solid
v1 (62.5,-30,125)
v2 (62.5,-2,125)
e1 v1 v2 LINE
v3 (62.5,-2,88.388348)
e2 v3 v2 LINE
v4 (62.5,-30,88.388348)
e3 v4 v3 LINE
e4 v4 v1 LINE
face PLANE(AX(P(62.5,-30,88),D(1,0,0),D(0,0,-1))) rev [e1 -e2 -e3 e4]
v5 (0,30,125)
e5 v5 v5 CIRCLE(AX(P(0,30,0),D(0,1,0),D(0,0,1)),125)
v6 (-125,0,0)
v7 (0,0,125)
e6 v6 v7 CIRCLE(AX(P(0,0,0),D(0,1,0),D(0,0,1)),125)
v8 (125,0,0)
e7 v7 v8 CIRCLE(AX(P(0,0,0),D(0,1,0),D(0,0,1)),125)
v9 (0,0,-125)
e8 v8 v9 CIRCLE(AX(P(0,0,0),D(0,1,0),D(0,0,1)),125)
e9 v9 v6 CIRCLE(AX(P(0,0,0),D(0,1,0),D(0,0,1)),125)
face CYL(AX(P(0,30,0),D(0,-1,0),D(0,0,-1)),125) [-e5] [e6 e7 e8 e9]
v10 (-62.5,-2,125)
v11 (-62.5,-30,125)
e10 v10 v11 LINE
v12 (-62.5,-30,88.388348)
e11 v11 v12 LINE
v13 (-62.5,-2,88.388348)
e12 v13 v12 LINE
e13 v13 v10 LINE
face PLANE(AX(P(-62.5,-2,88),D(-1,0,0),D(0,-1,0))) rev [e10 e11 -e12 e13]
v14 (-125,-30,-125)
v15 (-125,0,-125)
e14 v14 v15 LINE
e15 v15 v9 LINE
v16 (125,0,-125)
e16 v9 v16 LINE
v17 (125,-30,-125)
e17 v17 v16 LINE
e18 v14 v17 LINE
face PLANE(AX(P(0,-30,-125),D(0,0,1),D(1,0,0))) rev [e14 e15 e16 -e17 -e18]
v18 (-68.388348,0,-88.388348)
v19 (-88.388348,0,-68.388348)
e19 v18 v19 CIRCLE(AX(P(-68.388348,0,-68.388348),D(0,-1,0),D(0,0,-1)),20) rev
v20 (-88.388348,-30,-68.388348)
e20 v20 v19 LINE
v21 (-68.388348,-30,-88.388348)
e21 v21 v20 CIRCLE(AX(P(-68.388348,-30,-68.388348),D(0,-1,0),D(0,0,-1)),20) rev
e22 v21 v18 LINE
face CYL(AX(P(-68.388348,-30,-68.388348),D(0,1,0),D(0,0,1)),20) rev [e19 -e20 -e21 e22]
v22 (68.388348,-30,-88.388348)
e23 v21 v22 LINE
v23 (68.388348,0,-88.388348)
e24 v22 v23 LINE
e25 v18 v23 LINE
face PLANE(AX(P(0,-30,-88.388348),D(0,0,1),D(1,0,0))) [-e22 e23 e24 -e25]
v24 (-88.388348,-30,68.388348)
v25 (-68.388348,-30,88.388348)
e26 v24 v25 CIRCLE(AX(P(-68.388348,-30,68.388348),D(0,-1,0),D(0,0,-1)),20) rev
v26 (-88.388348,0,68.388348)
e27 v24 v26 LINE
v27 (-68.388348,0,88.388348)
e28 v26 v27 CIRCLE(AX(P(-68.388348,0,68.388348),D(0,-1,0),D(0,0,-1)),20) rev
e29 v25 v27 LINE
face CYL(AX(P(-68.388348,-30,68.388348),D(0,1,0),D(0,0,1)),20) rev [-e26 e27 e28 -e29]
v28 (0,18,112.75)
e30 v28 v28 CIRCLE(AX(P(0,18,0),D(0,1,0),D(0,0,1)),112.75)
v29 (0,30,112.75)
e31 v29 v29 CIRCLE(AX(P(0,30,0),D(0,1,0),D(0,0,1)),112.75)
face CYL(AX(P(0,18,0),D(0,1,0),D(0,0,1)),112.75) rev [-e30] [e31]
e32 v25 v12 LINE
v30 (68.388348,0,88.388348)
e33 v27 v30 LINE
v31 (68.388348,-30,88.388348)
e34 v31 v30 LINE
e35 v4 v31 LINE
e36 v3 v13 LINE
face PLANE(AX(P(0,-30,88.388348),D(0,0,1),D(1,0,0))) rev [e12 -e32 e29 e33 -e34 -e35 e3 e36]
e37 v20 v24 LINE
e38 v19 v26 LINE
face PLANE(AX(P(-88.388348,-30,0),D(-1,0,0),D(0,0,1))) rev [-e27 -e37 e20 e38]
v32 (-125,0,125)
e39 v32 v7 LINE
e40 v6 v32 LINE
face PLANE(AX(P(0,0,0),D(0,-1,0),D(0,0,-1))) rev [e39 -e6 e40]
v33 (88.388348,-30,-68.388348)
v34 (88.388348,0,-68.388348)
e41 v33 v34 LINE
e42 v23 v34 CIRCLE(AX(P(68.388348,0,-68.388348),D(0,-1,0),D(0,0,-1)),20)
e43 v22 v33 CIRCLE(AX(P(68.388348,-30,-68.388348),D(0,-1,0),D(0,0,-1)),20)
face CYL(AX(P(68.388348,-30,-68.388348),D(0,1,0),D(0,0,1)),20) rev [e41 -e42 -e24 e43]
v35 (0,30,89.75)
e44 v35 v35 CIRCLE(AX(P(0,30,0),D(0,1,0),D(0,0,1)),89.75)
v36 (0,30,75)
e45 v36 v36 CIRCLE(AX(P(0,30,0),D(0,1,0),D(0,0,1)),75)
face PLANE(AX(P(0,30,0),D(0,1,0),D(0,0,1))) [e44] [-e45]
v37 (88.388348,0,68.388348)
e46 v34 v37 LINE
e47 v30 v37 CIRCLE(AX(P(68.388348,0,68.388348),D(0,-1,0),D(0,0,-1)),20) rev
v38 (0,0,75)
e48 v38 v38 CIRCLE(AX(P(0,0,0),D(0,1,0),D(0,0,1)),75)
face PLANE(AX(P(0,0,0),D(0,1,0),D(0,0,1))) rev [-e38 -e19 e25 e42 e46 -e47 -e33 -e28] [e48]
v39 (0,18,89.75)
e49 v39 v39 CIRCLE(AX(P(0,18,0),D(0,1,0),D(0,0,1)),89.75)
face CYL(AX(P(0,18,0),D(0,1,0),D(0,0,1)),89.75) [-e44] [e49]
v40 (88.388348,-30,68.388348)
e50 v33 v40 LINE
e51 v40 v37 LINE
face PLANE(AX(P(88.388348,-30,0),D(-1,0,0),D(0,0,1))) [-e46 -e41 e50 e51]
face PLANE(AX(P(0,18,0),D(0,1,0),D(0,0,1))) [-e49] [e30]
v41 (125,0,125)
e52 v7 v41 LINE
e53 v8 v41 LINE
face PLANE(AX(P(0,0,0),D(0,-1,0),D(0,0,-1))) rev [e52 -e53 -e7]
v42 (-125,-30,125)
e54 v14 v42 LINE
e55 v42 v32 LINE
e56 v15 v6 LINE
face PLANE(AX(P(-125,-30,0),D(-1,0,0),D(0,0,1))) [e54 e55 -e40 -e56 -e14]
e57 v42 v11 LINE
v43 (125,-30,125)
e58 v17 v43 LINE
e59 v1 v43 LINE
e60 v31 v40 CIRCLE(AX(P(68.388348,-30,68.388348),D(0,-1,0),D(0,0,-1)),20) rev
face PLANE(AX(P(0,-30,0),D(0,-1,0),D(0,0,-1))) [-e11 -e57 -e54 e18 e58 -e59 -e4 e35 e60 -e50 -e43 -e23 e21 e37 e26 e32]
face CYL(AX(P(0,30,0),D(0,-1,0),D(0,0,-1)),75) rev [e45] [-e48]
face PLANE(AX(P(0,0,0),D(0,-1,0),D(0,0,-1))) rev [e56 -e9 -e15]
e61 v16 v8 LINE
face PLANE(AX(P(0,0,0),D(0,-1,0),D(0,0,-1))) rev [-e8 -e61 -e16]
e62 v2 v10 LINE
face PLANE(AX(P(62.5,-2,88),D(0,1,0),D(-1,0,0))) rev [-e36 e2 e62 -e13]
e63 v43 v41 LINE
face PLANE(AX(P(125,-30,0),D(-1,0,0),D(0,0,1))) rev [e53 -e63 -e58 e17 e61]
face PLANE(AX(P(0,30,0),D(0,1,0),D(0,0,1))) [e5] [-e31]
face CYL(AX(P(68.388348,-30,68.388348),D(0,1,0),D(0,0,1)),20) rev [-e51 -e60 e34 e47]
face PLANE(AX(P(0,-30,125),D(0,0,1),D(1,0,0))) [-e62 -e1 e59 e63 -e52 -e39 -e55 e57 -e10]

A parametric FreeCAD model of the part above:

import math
import FreeCAD as App
import Part
import Sketcher

V = App.Vector
Q = App.Units.Quantity


def add_polygon(sketch, points):
    """Adds a closed chain of lines whose ends are joined by coincident constraints."""
    first, n = sketch.GeometryCount, len(points)
    for a, b in zip(points, points[1:] + points[:1]):
        sketch.addGeometry(Part.LineSegment(App.Vector(*a, 0), App.Vector(*b, 0)), False)
    for i in range(n):
        sketch.addConstraint(Sketcher.Constraint("Coincident", first + i, 2, first + (i + 1) % n, 1))

doc = App.newDocument("Part")
body = doc.addObject("PartDesign::Body", "Body")

sketch1 = body.newObject("Sketcher::SketchObject", "Sketch")
sketch1.AttachmentSupport = (doc.getObject("XZ_Plane"), [""])
sketch1.MapMode = "FlatFace"
sketch1.addGeometry([
    Part.ArcOfCircle(Part.Circle(V(0, 0, 0), V(0, 0, 1), 125), math.radians(90), math.radians(270)),
    Part.ArcOfCircle(Part.Circle(V(0, 0, 0), V(0, 0, 1), 125), math.radians(0), math.radians(90)),
    Part.ArcOfCircle(Part.Circle(V(0, 0, 0), V(0, 0, 1), 125), math.radians(-90), math.radians(0)),
    Part.Circle(V(0, 0, 0), V(0, 0, 1), 75),
], False)
sketch1.addConstraint([
    Sketcher.Constraint("Tangent", 0, 1, 1, 2),
    Sketcher.Constraint("Tangent", 1, 1, 2, 2),
    Sketcher.Constraint("Tangent", 2, 1, 0, 2),
    Sketcher.Constraint("Coincident", 0, 3, -1, 1),
    Sketcher.Constraint("Coincident", 3, 3, -1, 1),
    Sketcher.Constraint("PointOnObject", 0, 1, -2),
    Sketcher.Constraint("PointOnObject", 1, 1, -1),
    Sketcher.Constraint("PointOnObject", 2, 1, -2),
    Sketcher.Constraint("Diameter", 3, Q("150 mm")),
    Sketcher.Constraint("Radius", 0, Q("125 mm")),
])
pad1 = body.newObject("PartDesign::Pad", "Pad")
pad1.Profile = sketch1
pad1.Length = 30
pad1.Reversed = True

sketch2 = body.newObject("Sketcher::SketchObject", "Sketch001")
sketch2.AttachmentSupport = (doc.getObject("XZ_Plane"), [""])
sketch2.MapMode = "FlatFace"
sketch2.AttachmentOffset = App.Placement(V(0, 0, -30), App.Rotation())
sketch2.addGeometry([
    Part.Circle(V(0, 0, 0), V(0, 0, 1), 113),
    Part.Circle(V(0, 0, 0), V(0, 0, 1), 90),
], False)
sketch2.addConstraint([
    Sketcher.Constraint("Coincident", 0, 3, -1, 1),
    Sketcher.Constraint("Coincident", 1, 3, -1, 1),
    Sketcher.Constraint("Diameter", 0, Q("225.5 mm")),
    Sketcher.Constraint("Diameter", 1, Q("179.5 mm")),
])
pocket1 = body.newObject("PartDesign::Pocket", "Pocket")
pocket1.Profile = sketch2
pocket1.Length = 12
pocket1.Reversed = True

sketch3 = body.newObject("Sketcher::SketchObject", "Sketch002")
sketch3.AttachmentSupport = (doc.getObject("XZ_Plane"), [""])
sketch3.MapMode = "FlatFace"
sketch3.AttachmentOffset = App.Placement(V(0, 0, 30), App.Rotation())
add_polygon(sketch3, [(-125, 125), (-125, -125), (125, -125), (125, 125)])
sketch3.addGeometry(Part.ArcOfCircle(Part.Circle(V(-68, -68, 0), V(0, 0, 1), 20), math.radians(180), math.radians(270)), False)
sketch3.addGeometry(Part.LineSegment(V(-88, -68, 0), V(-88, 68, 0)), False)
sketch3.addGeometry(Part.ArcOfCircle(Part.Circle(V(-68, 68, 0), V(0, 0, 1), 20), math.radians(90), math.radians(180)), False)
sketch3.addGeometry(Part.LineSegment(V(-68, 88, 0), V(68, 88, 0)), False)
sketch3.addGeometry(Part.ArcOfCircle(Part.Circle(V(68, 68, 0), V(0, 0, 1), 20), math.radians(0), math.radians(90)), False)
sketch3.addGeometry(Part.LineSegment(V(88, 68, 0), V(88, -68, 0)), False)
sketch3.addGeometry(Part.ArcOfCircle(Part.Circle(V(68, -68, 0), V(0, 0, 1), 20), math.radians(-90), math.radians(0)), False)
sketch3.addGeometry(Part.LineSegment(V(68, -88, 0), V(-68, -88, 0)), False)
sketch3.addConstraint([
    Sketcher.Constraint("Tangent", 4, 1, 5, 1),
    Sketcher.Constraint("Tangent", 5, 2, 6, 2),
    Sketcher.Constraint("Tangent", 6, 1, 7, 1),
    Sketcher.Constraint("Tangent", 7, 2, 8, 2),
    Sketcher.Constraint("Tangent", 8, 1, 9, 1),
    Sketcher.Constraint("Tangent", 9, 2, 10, 2),
    Sketcher.Constraint("Tangent", 10, 1, 11, 1),
    Sketcher.Constraint("Tangent", 11, 2, 4, 2),
    Sketcher.Constraint("Vertical", 0),
    Sketcher.Constraint("Horizontal", 1),
    Sketcher.Constraint("Vertical", 2),
    Sketcher.Constraint("Horizontal", 3),
    Sketcher.Constraint("Vertical", 5),
    Sketcher.Constraint("Horizontal", 7),
    Sketcher.Constraint("Vertical", 9),
    Sketcher.Constraint("Horizontal", 11),
    Sketcher.Constraint("Equal", 4, 6),
    Sketcher.Constraint("Equal", 6, 8),
    Sketcher.Constraint("Equal", 8, 10),
    Sketcher.Constraint("Symmetric", 4, 3, 8, 3, -1, 1),
    Sketcher.Constraint("Symmetric", 0, 2, 2, 2, -1, 1),
    Sketcher.Constraint("Equal", 3, 0),
    Sketcher.Constraint("Equal", 11, 5),
    Sketcher.Constraint("Radius", 4, Q("20 mm")),
    Sketcher.Constraint("DistanceX", 1, 1, 1, 2, Q("250 mm")),
    Sketcher.Constraint("DistanceX", 7, 1, 7, 2, Q("136.776695 mm")),
])
pad2 = body.newObject("PartDesign::Pad", "Pad001")
pad2.Profile = sketch3
pad2.Length = 30
pad2.Reversed = True

sketch4 = body.newObject("Sketcher::SketchObject", "Sketch003")
sketch4.AttachmentSupport = (doc.getObject("XY_Plane"), [""])
sketch4.MapMode = "FlatFace"
sketch4.AttachmentOffset = App.Placement(V(0, 0, 125), App.Rotation())
add_polygon(sketch4, [(-62, -2), (-62, -30), (62, -30), (62, -2)])
sketch4.addConstraint([
    Sketcher.Constraint("Vertical", 0),
    Sketcher.Constraint("Horizontal", 1),
    Sketcher.Constraint("Vertical", 2),
    Sketcher.Constraint("Horizontal", 3),
    Sketcher.Constraint("DistanceX", 1, 1, 1, 2, Q("125 mm")),
    Sketcher.Constraint("DistanceY", 0, 2, 0, 1, Q("28 mm")),
    Sketcher.Constraint("DistanceY", 0, 2, -1, 1, Q("30 mm")),
    Sketcher.Constraint("DistanceX", 0, 2, -1, 1, Q("62.5 mm")),
])
pocket2 = body.newObject("PartDesign::Pocket", "Pocket001")
pocket2.Profile = sketch4
pocket2.Length = 37

doc.recompute()
